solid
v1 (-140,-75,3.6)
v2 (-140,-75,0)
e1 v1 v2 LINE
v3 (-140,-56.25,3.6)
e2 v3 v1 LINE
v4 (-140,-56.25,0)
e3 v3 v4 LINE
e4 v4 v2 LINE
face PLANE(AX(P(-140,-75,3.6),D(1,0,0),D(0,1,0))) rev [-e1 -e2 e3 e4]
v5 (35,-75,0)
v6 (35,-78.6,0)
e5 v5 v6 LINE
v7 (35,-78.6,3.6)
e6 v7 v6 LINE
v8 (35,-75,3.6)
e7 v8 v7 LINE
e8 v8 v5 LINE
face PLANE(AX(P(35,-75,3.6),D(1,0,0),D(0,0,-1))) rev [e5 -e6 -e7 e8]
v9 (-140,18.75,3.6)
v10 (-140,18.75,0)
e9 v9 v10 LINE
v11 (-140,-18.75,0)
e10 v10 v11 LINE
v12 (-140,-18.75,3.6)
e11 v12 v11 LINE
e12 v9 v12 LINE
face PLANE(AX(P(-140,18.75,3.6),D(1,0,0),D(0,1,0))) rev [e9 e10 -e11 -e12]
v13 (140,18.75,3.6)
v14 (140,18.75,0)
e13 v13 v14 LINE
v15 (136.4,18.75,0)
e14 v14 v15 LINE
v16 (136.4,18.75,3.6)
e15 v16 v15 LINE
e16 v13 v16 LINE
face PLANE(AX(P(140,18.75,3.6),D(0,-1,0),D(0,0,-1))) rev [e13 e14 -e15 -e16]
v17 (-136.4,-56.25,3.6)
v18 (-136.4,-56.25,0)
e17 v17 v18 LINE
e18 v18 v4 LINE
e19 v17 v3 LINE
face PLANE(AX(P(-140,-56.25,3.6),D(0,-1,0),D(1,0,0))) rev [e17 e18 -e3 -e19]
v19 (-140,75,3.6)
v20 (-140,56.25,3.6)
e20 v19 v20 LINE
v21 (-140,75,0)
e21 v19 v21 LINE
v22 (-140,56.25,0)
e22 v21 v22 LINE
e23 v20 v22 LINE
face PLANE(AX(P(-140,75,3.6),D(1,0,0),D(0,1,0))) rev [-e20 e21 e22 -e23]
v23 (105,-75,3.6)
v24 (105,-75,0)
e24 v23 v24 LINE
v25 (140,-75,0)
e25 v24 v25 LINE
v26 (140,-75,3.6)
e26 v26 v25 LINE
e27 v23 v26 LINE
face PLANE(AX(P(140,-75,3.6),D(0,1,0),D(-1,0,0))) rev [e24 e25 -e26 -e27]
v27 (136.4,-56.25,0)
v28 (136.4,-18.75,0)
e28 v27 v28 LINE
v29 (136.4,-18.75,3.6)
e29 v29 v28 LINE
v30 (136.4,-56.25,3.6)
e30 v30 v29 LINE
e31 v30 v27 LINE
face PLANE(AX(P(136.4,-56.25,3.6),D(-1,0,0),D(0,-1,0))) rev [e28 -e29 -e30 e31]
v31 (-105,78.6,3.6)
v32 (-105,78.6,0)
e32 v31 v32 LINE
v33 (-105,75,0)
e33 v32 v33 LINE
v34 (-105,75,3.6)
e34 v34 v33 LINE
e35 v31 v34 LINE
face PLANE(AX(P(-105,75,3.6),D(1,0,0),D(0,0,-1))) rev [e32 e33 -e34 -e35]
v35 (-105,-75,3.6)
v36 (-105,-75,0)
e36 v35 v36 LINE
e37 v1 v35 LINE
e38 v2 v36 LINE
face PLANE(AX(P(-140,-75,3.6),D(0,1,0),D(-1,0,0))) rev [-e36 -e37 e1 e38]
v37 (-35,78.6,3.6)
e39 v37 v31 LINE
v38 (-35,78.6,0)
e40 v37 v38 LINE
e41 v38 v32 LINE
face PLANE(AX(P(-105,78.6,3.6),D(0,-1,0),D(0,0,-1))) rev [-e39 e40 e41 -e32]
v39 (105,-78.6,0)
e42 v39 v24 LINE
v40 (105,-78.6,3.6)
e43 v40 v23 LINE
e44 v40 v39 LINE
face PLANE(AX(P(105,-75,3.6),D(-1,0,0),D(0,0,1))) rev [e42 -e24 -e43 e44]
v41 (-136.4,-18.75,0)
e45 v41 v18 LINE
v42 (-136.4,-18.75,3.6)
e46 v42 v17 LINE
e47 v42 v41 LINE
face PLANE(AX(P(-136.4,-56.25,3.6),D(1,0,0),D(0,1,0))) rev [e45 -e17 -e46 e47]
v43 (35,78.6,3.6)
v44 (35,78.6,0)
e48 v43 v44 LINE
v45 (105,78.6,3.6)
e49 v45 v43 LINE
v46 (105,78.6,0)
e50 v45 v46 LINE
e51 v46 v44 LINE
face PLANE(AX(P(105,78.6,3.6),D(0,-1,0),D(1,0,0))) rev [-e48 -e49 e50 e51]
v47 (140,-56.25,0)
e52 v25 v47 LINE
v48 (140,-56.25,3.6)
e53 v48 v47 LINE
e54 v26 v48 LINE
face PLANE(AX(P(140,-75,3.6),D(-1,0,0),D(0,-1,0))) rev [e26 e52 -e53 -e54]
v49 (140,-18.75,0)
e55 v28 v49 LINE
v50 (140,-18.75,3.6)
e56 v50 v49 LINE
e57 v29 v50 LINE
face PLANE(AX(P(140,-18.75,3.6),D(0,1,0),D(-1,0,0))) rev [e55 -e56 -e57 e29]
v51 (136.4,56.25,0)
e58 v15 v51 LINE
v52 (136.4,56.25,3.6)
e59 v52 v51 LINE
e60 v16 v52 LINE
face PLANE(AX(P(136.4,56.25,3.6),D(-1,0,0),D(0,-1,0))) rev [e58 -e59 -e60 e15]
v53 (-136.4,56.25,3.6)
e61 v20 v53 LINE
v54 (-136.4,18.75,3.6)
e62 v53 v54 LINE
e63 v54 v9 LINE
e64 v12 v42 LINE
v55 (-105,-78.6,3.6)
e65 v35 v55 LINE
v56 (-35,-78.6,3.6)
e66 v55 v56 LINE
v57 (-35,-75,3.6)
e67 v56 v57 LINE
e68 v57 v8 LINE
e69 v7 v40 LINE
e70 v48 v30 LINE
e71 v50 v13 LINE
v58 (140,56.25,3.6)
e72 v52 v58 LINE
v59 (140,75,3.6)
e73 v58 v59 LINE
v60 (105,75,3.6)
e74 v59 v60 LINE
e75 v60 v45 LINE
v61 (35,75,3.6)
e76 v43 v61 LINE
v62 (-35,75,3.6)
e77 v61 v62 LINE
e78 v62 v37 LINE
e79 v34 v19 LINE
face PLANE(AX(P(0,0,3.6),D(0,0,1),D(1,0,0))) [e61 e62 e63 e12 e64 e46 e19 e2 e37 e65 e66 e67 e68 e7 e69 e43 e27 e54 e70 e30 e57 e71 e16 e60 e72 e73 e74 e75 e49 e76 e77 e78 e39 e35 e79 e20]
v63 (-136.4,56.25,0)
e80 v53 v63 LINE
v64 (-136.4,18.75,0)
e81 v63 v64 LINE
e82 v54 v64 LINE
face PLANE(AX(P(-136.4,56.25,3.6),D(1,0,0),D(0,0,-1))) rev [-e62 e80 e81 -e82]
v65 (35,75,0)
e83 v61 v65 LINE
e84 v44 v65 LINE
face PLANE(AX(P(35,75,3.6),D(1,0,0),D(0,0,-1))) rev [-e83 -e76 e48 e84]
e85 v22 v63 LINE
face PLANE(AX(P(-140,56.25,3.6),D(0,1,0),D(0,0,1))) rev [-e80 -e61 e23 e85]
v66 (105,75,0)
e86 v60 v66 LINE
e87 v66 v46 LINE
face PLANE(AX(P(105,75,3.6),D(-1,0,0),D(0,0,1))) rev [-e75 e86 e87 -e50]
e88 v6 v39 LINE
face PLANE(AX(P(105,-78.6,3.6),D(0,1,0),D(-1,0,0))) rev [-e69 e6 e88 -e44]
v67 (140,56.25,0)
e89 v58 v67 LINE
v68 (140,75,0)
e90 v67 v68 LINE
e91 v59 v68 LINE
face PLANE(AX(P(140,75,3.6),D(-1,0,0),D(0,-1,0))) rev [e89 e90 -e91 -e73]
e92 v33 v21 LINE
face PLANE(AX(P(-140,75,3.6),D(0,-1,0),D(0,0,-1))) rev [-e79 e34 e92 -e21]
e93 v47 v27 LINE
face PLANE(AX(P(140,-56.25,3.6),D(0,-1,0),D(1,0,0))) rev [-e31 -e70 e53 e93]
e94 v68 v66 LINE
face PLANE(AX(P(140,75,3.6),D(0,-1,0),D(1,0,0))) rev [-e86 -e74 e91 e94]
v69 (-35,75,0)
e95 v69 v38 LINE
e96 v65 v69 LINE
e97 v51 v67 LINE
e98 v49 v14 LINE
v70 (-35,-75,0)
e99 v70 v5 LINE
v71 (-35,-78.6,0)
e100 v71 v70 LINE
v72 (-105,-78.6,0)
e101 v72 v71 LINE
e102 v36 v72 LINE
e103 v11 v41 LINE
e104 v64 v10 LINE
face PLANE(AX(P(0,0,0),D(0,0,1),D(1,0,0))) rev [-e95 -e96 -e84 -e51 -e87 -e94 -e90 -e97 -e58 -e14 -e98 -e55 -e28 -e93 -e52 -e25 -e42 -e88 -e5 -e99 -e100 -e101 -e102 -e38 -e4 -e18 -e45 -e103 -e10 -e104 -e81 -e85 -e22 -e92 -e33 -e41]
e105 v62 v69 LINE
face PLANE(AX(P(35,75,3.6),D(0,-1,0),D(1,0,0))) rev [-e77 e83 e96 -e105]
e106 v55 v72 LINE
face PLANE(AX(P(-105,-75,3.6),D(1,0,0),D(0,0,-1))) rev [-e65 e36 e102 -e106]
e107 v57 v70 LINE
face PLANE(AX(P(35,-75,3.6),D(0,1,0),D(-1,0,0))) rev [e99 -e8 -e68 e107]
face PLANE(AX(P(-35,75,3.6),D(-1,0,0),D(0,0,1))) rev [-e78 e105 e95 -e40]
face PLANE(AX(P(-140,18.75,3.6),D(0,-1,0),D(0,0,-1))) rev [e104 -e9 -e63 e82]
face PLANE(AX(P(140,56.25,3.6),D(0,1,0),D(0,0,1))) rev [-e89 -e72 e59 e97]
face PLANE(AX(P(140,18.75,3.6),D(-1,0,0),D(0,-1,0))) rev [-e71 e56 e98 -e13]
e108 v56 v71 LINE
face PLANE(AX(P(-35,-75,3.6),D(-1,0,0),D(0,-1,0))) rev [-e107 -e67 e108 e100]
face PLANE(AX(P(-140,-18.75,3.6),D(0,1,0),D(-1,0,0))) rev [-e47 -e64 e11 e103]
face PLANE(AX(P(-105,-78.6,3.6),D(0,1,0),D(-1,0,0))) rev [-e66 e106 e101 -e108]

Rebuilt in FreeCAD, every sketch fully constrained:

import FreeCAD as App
import Part
import Sketcher


def add_polygon(sketch, points):
    """Adds a closed chain of lines whose ends are joined by coincident constraints."""
    first, n = sketch.GeometryCount, len(points)
    for a, b in zip(points, points[1:] + points[:1]):
        sketch.addGeometry(Part.LineSegment(App.Vector(*a, 0), App.Vector(*b, 0)), False)
    for i in range(n):
        sketch.addConstraint(Sketcher.Constraint("Coincident", first + i, 2, first + (i + 1) % n, 1))

doc = App.newDocument("Part")
params = doc.addObject("Spreadsheet::Sheet", "Params")
for row, (alias, value) in enumerate([
    ("sketch1_width", "35 mm"),
    ("sketch1_width2", "70 mm"),
    ("sketch1_width3", "3.6 mm"),
    ("sketch1_height", "37.5 mm"),
    ("pad1_length", "3.6 mm"),
], start=1):
    params.set(f"A{row}", alias)
    params.set(f"B{row}", "=" + value)
    params.setAlias(f"B{row}", alias)

body = doc.addObject("PartDesign::Body", "Body")

# Sketch on XY plane
sketch1 = body.newObject("Sketcher::SketchObject", "Sketch")
sketch1.AttachmentSupport = (doc.getObject("XY_Plane"), [""])
sketch1.MapMode = "FlatFace"
add_polygon(sketch1, [(105, -75), (140, -75), (140, -56.2), (136.4, -56.2), (136.4, -18.8), (140, -18.8), (140, 18.8), (136.4, 18.8), (136.4, 56.2), (140, 56.2), (140, 75), (105, 75), (105, 78.6), (35, 78.6), (35, 75), (-35, 75), (-35, 78.6), (-105, 78.6), (-105, 75), (-140, 75), (-140, 56.2), (-136.4, 56.2), (-136.4, 18.8), (-140, 18.8), (-140, -18.8), (-136.4, -18.8), (-136.4, -56.2), (-140, -56.2), (-140, -75), (-105, -75), (-105, -78.6), (-35, -78.6), (-35, -75), (35, -75), (35, -78.6), (105, -78.6)])  # lines 0-35
sketch1.addConstraint(Sketcher.Constraint("Horizontal", 0))
sketch1.addConstraint(Sketcher.Constraint("Vertical", 1))
sketch1.addConstraint(Sketcher.Constraint("Horizontal", 2))
sketch1.addConstraint(Sketcher.Constraint("Vertical", 3))
sketch1.addConstraint(Sketcher.Constraint("Horizontal", 4))
sketch1.addConstraint(Sketcher.Constraint("Vertical", 5))
sketch1.addConstraint(Sketcher.Constraint("Horizontal", 6))
sketch1.addConstraint(Sketcher.Constraint("Vertical", 7))
sketch1.addConstraint(Sketcher.Constraint("Horizontal", 8))
sketch1.addConstraint(Sketcher.Constraint("Vertical", 9))
sketch1.addConstraint(Sketcher.Constraint("Horizontal", 10))
sketch1.addConstraint(Sketcher.Constraint("Vertical", 11))
sketch1.addConstraint(Sketcher.Constraint("Horizontal", 12))
sketch1.addConstraint(Sketcher.Constraint("Vertical", 13))
sketch1.addConstraint(Sketcher.Constraint("Horizontal", 14))
sketch1.addConstraint(Sketcher.Constraint("Vertical", 15))
sketch1.addConstraint(Sketcher.Constraint("Horizontal", 16))
sketch1.addConstraint(Sketcher.Constraint("Vertical", 17))
sketch1.addConstraint(Sketcher.Constraint("Horizontal", 18))
sketch1.addConstraint(Sketcher.Constraint("Vertical", 19))
sketch1.addConstraint(Sketcher.Constraint("Horizontal", 20))
sketch1.addConstraint(Sketcher.Constraint("Vertical", 21))
sketch1.addConstraint(Sketcher.Constraint("Horizontal", 22))
sketch1.addConstraint(Sketcher.Constraint("Vertical", 23))
sketch1.addConstraint(Sketcher.Constraint("Horizontal", 24))
sketch1.addConstraint(Sketcher.Constraint("Vertical", 25))
sketch1.addConstraint(Sketcher.Constraint("Horizontal", 26))
sketch1.addConstraint(Sketcher.Constraint("Vertical", 27))
sketch1.addConstraint(Sketcher.Constraint("Horizontal", 28))
sketch1.addConstraint(Sketcher.Constraint("Vertical", 29))
sketch1.addConstraint(Sketcher.Constraint("Horizontal", 30))
sketch1.addConstraint(Sketcher.Constraint("Vertical", 31))
sketch1.addConstraint(Sketcher.Constraint("Horizontal", 32))
sketch1.addConstraint(Sketcher.Constraint("Vertical", 33))
sketch1.addConstraint(Sketcher.Constraint("Horizontal", 34))
sketch1.addConstraint(Sketcher.Constraint("Vertical", 35))
sketch1.addConstraint(Sketcher.Constraint("Symmetric", 0, 2, 18, 2, -1, 1))
sketch1.addConstraint(Sketcher.Constraint("Symmetric", 2, 2, 20, 2, -1, 1))
sketch1.addConstraint(Sketcher.Constraint("Symmetric", 4, 2, 22, 2, -1, 1))
sketch1.addConstraint(Sketcher.Constraint("Symmetric", 6, 2, 24, 2, -1, 1))
sketch1.addConstraint(Sketcher.Constraint("Symmetric", 8, 2, 26, 2, -1, 1))
sketch1.addConstraint(Sketcher.Constraint("Symmetric", 10, 2, 28, 2, -1, 1))
sketch1.addConstraint(Sketcher.Constraint("Symmetric", 12, 2, 30, 2, -1, 1))
sketch1.addConstraint(Sketcher.Constraint("Symmetric", 14, 2, 32, 2, -1, 1))
sketch1.addConstraint(Sketcher.Constraint("Symmetric", 16, 2, 34, 2, -1, 1))
sketch1.addConstraint(Sketcher.Constraint("Symmetric", 12, 2, 15, 2, -2))
sketch1.addConstraint(Sketcher.Constraint("Symmetric", 10, 2, 17, 2, -2))
sketch1.addConstraint(Sketcher.Constraint("Symmetric", 8, 2, 19, 2, -2))
sketch1.addConstraint(Sketcher.Constraint("Symmetric", 6, 2, 21, 2, -2))
sketch1.addConstraint(Sketcher.Constraint("Horizontal", 10, 2, 13, 2))
sketch1.addConstraint(Sketcher.Constraint("Vertical", 1, 2, 4, 2))
sketch1.addConstraint(Sketcher.Constraint("Equal", 12, 14))
sketch1.addConstraint(Sketcher.Constraint("Equal", 3, 5))
sketch1.addConstraint(Sketcher.Constraint("Equal", 26, 11))
sketch1.addConstraint(Sketcher.Constraint("DistanceX", 0, 1, 0, 2, 35.0))
sketch1.addConstraint(Sketcher.Constraint("DistanceX", 12, 2, 12, 1, 70.0))
sketch1.addConstraint(Sketcher.Constraint("DistanceX", 2, 2, 2, 1, 3.6))
sketch1.addConstraint(Sketcher.Constraint("DistanceY", 3, 1, 3, 2, 37.5))
sketch1.addConstraint(Sketcher.Constraint("DistanceY", 0, 2, -1, 1, 75.0))
sketch1.setExpression("Constraints[90]", "Params.sketch1_width")
sketch1.setExpression("Constraints[91]", "Params.sketch1_width2")
sketch1.setExpression("Constraints[92]", "Params.sketch1_width3")
sketch1.setExpression("Constraints[93]", "Params.sketch1_height")
pad1 = body.newObject("PartDesign::Pad", "Pad")
pad1.Profile = sketch1
pad1.setExpression("Length", "Params.pad1_length")

doc.recompute()
